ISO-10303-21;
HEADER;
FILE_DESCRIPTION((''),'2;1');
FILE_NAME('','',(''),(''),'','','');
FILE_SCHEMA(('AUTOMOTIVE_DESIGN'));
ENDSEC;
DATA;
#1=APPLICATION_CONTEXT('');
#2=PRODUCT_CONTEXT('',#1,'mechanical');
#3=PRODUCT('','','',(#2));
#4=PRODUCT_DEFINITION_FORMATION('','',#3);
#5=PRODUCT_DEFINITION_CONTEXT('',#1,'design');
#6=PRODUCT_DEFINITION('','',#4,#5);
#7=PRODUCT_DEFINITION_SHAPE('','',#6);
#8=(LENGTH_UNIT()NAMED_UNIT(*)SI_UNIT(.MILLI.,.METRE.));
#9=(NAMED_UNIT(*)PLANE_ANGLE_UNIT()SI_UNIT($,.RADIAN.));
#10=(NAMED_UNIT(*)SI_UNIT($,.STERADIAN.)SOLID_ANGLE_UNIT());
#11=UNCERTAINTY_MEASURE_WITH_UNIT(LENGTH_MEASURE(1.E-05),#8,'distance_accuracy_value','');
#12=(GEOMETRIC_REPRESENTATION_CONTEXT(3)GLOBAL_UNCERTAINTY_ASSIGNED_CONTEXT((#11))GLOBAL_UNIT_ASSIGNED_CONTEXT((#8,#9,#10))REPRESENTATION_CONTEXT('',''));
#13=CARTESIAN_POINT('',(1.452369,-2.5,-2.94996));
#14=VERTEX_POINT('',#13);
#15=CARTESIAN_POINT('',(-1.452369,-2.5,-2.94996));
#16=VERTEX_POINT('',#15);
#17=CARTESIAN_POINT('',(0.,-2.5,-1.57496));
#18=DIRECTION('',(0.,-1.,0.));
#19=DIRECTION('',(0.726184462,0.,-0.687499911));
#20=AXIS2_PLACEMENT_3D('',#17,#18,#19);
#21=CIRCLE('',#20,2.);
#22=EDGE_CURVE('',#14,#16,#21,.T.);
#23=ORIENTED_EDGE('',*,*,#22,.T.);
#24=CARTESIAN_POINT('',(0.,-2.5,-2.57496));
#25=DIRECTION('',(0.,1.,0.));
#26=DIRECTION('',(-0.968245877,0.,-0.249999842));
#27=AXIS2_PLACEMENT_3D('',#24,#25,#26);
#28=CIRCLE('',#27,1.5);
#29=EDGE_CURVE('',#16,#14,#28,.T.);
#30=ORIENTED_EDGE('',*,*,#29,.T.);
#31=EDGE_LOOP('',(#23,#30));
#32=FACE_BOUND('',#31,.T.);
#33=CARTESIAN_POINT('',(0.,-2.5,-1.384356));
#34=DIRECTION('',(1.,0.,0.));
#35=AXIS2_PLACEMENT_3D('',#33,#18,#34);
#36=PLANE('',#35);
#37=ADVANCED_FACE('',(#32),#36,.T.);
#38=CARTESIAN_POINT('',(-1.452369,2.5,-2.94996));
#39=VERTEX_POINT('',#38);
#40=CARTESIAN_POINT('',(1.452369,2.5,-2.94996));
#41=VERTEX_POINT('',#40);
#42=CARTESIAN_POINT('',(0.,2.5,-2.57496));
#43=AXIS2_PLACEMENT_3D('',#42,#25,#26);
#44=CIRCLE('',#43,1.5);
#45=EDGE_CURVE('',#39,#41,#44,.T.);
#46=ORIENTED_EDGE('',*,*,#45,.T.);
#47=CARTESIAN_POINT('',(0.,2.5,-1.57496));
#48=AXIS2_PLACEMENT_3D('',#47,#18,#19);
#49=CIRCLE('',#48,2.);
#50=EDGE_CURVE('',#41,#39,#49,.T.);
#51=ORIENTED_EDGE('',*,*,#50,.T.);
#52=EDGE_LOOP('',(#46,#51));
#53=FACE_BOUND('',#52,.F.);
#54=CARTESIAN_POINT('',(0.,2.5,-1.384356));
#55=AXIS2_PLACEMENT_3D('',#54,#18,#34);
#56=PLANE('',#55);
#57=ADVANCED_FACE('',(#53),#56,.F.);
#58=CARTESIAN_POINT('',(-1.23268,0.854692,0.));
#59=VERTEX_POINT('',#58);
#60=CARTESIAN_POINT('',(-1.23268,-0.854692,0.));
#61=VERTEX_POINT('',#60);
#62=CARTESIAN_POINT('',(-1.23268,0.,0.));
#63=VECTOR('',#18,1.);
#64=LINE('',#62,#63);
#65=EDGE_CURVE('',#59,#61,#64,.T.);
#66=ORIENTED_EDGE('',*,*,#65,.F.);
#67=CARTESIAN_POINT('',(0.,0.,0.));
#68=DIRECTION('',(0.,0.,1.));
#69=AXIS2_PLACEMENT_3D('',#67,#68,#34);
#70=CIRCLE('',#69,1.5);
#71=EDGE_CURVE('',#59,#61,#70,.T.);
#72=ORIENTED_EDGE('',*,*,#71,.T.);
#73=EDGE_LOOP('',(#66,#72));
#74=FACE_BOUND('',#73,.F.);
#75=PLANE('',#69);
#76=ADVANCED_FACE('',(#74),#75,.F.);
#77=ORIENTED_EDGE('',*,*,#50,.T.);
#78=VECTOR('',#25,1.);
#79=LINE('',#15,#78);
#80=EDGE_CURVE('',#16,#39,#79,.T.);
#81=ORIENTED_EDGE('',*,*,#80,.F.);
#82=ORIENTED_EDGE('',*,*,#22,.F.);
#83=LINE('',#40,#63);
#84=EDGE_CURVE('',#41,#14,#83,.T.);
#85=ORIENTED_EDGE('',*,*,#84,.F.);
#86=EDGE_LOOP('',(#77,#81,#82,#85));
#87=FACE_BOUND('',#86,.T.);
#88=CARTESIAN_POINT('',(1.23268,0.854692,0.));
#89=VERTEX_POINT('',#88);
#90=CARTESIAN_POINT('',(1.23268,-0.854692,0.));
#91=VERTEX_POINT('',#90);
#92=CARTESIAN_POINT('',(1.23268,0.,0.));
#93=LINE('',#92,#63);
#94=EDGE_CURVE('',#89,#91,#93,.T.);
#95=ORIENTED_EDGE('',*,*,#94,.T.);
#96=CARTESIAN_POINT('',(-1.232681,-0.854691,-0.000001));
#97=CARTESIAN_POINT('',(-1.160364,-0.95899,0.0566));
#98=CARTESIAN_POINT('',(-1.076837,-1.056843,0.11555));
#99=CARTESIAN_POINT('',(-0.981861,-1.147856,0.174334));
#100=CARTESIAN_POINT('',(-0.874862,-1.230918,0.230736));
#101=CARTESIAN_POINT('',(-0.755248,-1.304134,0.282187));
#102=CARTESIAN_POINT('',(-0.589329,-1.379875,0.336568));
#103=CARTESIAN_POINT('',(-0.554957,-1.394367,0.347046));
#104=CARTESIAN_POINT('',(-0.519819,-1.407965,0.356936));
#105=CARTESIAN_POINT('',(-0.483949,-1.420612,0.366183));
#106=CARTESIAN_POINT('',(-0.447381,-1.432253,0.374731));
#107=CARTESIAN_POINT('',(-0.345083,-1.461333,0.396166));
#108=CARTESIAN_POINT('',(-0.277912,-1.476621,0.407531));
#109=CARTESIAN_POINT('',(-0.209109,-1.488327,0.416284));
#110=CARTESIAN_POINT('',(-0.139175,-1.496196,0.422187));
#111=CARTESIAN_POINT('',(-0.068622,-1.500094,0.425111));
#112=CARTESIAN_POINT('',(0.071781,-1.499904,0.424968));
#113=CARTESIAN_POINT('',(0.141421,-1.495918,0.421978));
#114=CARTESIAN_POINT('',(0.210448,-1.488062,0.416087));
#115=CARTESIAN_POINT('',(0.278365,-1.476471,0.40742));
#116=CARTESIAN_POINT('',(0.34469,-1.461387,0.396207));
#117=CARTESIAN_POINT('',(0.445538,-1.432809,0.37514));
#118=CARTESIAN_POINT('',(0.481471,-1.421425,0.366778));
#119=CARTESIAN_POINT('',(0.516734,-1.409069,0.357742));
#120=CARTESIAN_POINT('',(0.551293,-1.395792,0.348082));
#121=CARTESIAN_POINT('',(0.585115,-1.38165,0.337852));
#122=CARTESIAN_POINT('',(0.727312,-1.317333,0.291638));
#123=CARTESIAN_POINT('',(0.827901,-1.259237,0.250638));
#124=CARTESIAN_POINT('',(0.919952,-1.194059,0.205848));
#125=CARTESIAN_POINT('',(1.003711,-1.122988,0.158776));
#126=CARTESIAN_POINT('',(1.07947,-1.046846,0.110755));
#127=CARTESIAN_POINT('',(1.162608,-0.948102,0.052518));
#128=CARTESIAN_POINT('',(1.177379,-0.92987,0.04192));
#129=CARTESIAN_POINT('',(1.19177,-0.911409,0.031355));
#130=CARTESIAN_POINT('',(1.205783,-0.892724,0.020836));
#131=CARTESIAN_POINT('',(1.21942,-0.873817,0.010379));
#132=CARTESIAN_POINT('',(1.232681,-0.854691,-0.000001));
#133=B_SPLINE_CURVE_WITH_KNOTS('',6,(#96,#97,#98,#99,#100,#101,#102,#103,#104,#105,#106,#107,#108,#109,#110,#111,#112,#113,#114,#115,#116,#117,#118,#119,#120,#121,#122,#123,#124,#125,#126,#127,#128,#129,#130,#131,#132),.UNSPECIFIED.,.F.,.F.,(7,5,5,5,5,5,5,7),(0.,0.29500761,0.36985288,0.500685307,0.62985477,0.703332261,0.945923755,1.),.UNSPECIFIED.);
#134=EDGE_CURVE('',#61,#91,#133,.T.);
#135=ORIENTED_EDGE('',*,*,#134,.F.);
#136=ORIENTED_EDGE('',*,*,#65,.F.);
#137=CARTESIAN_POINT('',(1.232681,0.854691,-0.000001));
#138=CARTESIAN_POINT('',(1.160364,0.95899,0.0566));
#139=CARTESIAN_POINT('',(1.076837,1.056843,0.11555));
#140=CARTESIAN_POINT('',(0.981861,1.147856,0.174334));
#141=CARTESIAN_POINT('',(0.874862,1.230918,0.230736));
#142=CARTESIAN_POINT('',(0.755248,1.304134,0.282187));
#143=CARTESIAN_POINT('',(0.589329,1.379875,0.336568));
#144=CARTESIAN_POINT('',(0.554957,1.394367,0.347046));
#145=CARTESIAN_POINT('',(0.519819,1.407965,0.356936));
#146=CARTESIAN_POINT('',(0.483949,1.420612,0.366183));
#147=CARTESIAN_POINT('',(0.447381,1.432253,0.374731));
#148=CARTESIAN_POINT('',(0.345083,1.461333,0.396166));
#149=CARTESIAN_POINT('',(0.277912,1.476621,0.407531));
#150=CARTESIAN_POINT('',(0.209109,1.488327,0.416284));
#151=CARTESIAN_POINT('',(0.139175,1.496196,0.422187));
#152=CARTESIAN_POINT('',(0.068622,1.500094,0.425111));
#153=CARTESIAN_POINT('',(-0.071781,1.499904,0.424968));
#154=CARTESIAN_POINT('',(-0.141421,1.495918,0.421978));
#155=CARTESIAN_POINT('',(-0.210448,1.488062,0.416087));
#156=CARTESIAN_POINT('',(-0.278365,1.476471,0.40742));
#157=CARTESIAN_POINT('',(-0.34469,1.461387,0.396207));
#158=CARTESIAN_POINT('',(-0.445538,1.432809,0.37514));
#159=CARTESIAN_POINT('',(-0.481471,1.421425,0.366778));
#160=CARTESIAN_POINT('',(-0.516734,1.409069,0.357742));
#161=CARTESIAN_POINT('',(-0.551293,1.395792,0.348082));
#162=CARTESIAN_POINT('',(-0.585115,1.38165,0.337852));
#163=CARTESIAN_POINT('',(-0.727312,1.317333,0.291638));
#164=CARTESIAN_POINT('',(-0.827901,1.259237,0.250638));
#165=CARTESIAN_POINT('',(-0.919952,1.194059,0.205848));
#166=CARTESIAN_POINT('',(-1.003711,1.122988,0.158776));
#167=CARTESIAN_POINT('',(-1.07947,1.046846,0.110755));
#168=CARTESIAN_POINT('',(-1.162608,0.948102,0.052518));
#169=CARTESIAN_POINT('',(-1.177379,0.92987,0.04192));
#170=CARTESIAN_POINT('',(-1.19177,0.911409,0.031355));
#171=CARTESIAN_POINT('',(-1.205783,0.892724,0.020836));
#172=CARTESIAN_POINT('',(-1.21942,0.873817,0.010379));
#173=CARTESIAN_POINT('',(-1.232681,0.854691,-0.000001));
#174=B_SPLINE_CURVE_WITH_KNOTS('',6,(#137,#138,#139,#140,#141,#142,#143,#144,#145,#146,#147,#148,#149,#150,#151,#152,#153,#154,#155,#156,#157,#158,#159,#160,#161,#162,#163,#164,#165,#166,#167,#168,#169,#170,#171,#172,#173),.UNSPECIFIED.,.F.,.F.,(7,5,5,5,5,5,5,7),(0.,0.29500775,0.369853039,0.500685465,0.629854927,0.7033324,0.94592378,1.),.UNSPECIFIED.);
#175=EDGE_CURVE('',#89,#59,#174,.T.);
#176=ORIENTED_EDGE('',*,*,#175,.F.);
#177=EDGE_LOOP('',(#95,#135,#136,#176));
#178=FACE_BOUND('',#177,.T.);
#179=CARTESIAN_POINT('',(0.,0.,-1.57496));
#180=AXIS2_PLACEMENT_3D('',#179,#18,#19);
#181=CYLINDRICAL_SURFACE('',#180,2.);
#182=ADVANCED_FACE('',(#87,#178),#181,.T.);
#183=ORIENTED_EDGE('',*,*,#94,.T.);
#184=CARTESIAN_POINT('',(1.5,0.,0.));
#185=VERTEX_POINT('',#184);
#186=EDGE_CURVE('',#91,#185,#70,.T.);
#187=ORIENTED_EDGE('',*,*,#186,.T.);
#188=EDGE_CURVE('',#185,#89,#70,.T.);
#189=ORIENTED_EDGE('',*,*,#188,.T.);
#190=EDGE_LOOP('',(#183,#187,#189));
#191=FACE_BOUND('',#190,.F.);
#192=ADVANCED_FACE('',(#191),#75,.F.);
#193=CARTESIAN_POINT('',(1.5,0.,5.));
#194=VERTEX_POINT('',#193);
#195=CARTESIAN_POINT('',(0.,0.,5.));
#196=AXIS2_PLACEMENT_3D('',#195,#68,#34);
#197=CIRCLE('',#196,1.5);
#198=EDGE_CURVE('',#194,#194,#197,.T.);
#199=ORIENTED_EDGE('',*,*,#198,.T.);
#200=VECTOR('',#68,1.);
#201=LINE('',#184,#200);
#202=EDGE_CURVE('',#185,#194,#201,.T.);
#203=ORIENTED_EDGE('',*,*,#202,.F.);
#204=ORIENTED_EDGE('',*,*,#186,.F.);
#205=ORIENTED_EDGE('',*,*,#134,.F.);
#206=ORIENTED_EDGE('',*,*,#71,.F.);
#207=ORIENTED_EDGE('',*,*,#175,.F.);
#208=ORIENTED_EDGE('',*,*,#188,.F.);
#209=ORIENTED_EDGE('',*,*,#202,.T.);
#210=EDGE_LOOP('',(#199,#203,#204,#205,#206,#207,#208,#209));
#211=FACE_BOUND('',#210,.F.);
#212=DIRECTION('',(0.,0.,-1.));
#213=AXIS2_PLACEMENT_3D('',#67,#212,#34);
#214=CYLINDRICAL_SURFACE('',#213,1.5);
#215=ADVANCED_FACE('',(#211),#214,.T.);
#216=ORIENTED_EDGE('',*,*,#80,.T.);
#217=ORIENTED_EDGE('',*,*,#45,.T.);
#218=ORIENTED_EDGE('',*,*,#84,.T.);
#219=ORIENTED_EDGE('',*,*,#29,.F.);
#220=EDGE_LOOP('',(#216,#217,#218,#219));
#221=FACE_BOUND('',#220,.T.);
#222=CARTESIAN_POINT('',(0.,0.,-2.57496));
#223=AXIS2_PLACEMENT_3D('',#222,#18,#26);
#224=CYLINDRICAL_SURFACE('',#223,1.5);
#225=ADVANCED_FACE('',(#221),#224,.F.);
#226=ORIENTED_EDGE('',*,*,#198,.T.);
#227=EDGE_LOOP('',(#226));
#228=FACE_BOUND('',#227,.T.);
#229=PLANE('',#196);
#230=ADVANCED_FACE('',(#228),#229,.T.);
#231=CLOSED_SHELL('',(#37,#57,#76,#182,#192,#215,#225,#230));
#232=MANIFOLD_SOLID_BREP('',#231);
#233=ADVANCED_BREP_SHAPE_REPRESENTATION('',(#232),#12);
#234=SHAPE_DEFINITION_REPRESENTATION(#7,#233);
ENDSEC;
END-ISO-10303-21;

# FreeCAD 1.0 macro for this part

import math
import FreeCAD as App
import Part
import Sketcher
from FreeCAD import Vector

doc = App.newDocument("Part")
body = doc.addObject("PartDesign::Body", "Body")

# Sketch on XZ plane
sketch1 = doc.addObject("Sketcher::SketchObject", "Sketch")
body.addObject(sketch1)
sketch1.AttachmentSupport = (doc.XZ_Plane, [""])
sketch1.MapMode = "FlatFace"
sketch1.addGeometry(Part.ArcOfCircle(Part.Circle(Vector(0, -2.6, 0), Vector(0, 0, 1), 1.5), math.radians(-14), math.radians(194)), False)
sketch1.addGeometry(Part.ArcOfCircle(Part.Circle(Vector(0, -1.6, 0), Vector(0, 0, 1), 2), math.radians(-43), math.radians(223)), False)
sketch1.addConstraint(Sketcher.Constraint("Coincident", 0, 1, 1, 1))
sketch1.addConstraint(Sketcher.Constraint("Coincident", 1, 2, 0, 2))
sketch1.addConstraint(Sketcher.Constraint("Symmetric", 0, 1, 1, 2, -2))
sketch1.addConstraint(Sketcher.Constraint("Radius", 1, 2.0))
sketch1.addConstraint(Sketcher.Constraint("Radius", 0, 1.5))
sketch1.addConstraint(Sketcher.Constraint("DistanceY", 0, 3, 1, 3, 1.0))
sketch1.addConstraint(Sketcher.Constraint("DistanceY", 0, 3, -1, 1, 2.57496))
pad1 = doc.addObject("PartDesign::Pad", "Pad")
body.addObject(pad1)
pad1.Profile = sketch1
pad1.Length = 5
pad1.Midplane = True

# Sketch on XY plane
sketch2 = doc.addObject("Sketcher::SketchObject", "Sketch001")
body.addObject(sketch2)
sketch2.AttachmentSupport = (doc.XY_Plane, [""])
sketch2.MapMode = "FlatFace"
sketch2.addGeometry(Part.Circle(Vector(0, 0, 0), Vector(0, 0, 1), 1.5), False)
sketch2.addConstraint(Sketcher.Constraint("Coincident", 0, 3, -1, 1))
sketch2.addConstraint(Sketcher.Constraint("Diameter", 0, 3.0))
pad2 = doc.addObject("PartDesign::Pad", "Pad001")
body.addObject(pad2)
pad2.Profile = sketch2
pad2.Length = 5

doc.recompute()
